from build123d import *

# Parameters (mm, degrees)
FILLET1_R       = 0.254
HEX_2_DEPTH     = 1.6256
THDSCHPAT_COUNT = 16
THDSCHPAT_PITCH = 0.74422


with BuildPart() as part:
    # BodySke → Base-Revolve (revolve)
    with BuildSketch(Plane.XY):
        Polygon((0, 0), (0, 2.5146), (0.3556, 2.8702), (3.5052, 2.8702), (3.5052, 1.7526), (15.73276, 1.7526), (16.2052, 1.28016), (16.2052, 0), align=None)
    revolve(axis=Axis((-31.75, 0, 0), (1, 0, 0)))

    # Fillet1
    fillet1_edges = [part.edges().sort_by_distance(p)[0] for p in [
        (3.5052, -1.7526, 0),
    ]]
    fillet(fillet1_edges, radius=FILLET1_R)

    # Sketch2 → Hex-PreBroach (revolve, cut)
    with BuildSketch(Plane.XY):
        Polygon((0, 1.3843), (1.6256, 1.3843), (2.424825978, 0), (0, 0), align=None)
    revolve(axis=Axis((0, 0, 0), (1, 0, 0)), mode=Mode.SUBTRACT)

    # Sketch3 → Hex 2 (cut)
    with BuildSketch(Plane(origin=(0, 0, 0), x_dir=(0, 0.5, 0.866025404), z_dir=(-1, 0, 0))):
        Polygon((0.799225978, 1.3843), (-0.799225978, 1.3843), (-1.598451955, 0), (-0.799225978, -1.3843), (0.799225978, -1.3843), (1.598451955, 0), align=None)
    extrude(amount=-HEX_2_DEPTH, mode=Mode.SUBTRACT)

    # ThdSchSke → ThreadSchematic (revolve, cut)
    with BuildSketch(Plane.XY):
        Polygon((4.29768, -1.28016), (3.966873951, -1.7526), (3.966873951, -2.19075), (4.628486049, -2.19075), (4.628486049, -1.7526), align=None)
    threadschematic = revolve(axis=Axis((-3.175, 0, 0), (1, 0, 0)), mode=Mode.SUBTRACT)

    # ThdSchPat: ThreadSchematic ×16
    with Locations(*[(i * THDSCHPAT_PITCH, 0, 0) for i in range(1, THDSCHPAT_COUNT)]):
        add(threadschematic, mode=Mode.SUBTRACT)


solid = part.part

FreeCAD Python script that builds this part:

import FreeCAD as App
import Part
import Sketcher
Q = App.Units.Quantity


def edges_at(feature, points):
    """Names of the edges that pass closest to the given points."""
    edges = feature.Shape.Edges
    near = lambda p: min(range(len(edges)), key=lambda i: edges[i].distToShape(Part.Vertex(*p))[0])
    return sorted({f"Edge{near(p) + 1}" for p in points})


def add_polygon(sketch, points):
    """Adds a closed chain of lines whose ends are joined by coincident constraints."""
    first, n = sketch.GeometryCount, len(points)
    for a, b in zip(points, points[1:] + points[:1]):
        sketch.addGeometry(Part.LineSegment(App.Vector(*a, 0), App.Vector(*b, 0)), False)
    for i in range(n):
        sketch.addConstraint(Sketcher.Constraint("Coincident", first + i, 2, first + (i + 1) % n, 1))

doc = App.newDocument("Part")
params = doc.addObject("Spreadsheet::Sheet", "Params")
for row, (alias, value) in enumerate([
    ("sketch1_width", "0.638 in"),
    ("sketch1_width2", "0.124 in"),
    ("sketch1_height", "0.099 in"),
    ("sketch1_height2", "0.044 in"),
    ("revolution_angle", "360 deg"),
    ("fillet_radius", "0.01 in"),
    ("sketch2_width", "0.064 in"),
    ("groove_angle", "360 deg"),
    ("pocket1_length", "0.064 in"),
    ("groove2_angle", "360 deg"),
    ("linearpattern_pitch", "0.0293 in"),
], start=1):
    params.set(f"A{row}", alias)
    params.set(f"B{row}", "=" + value)
    params.setAlias(f"B{row}", alias)

body = doc.addObject("PartDesign::Body", "Body")

sketch1 = body.newObject("Sketcher::SketchObject", "Sketch")
sketch1.AttachmentSupport = (doc.getObject("XY_Plane"), [""])
sketch1.MapMode = "FlatFace"
add_polygon(sketch1, [(0, 2.5), (0, 0), (16.2, 0), (16.2, 1.3), (15.7, 1.8), (3.5, 1.8), (3.5, 2.9), (0.4, 2.9)])
sketch1.addConstraint([
    Sketcher.Constraint("Vertical", 0),
    Sketcher.Constraint("Horizontal", 1),
    Sketcher.Constraint("Vertical", 2),
    Sketcher.Constraint("Horizontal", 4),
    Sketcher.Constraint("Vertical", 5),
    Sketcher.Constraint("Horizontal", 6),
    Sketcher.Constraint("Coincident", 0, 2, -1, 1),
    Sketcher.Constraint("Perpendicular", 3, 7),
    Sketcher.Constraint("Angle", 3, Q("135 deg")),
    Sketcher.Constraint("DistanceX", 4, 2, 2, 2, Q("0.5 in")),
    Sketcher.Constraint("DistanceX", 1, 1, 1, 2, Q("0.638 in")),
    Sketcher.Constraint("DistanceX", 6, 2, 6, 1, Q("0.124 in")),
    Sketcher.Constraint("DistanceY", 0, 2, 0, 1, Q("0.099 in")),
    Sketcher.Constraint("DistanceY", 5, 1, 5, 2, Q("0.044 in")),
    Sketcher.Constraint("DistanceX", 4, 2, 4, 1, Q("0.4814 in")),
])
sketch1.setExpression("Constraints[18]", "Params.sketch1_width")
sketch1.setExpression("Constraints[19]", "Params.sketch1_width2")
sketch1.setExpression("Constraints[20]", "Params.sketch1_height")
sketch1.setExpression("Constraints[21]", "Params.sketch1_height2")
revolution = body.newObject("PartDesign::Revolution", "Revolution")
revolution.Profile = sketch1
revolution.ReferenceAxis = (sketch1, ["H_Axis"])
revolution.setExpression("Angle", "Params.revolution_angle")
doc.recompute()

fillet = body.newObject("PartDesign::Fillet", "Fillet")
fillet.Base = (revolution, edges_at(revolution, [(3.505, -1.753, 0)]))
fillet.setExpression("Radius", "Params.fillet_radius")

sketch2 = body.newObject("Sketcher::SketchObject", "Sketch001")
sketch2.AttachmentSupport = (doc.getObject("XY_Plane"), [""])
sketch2.MapMode = "FlatFace"
add_polygon(sketch2, [(1.6, 1.4), (0, 1.4), (0, 0), (2.4, 0)])
sketch2.addConstraint([
    Sketcher.Constraint("Horizontal", 0),
    Sketcher.Constraint("Vertical", 1),
    Sketcher.Constraint("Horizontal", 2),
    Sketcher.Constraint("Coincident", 1, 2, -1, 1),
    Sketcher.Constraint("Angle", 3, Q("120 deg")),
    Sketcher.Constraint("DistanceX", 0, 2, 0, 1, Q("0.064 in")),
    Sketcher.Constraint("DistanceY", 1, 2, 1, 1, Q("0.0545 in")),
])
sketch2.setExpression("Constraints[9]", "Params.sketch2_width")
groove = body.newObject("PartDesign::Groove", "Groove")
groove.Profile = sketch2
groove.ReferenceAxis = (sketch2, ["H_Axis"])
groove.setExpression("Angle", "Params.groove_angle")

sketch3 = body.newObject("Sketcher::SketchObject", "Sketch002")
sketch3.AttachmentSupport = (doc.getObject("YZ_Plane"), [""])
sketch3.MapMode = "FlatFace"
add_polygon(sketch3, [(1.6, 0), (0.8, -1.4), (-0.8, -1.4), (-1.6, 0), (-0.8, 1.4), (0.8, 1.4)])
sketch3.addConstraint([
    Sketcher.Constraint("Horizontal", 1),
    Sketcher.Constraint("Horizontal", 4),
    Sketcher.Constraint("Symmetric", 0, 2, 3, 2, -1, 1),
    Sketcher.Constraint("Symmetric", 2, 2, 5, 2, -1, 1),
    Sketcher.Constraint("PointOnObject", 2, 2, -1),
    Sketcher.Constraint("Parallel", 2, 5),
    Sketcher.Constraint("Vertical", 1, 2, 3, 2),
    Sketcher.Constraint("Angle", 0, Q("-120 deg")),
    Sketcher.Constraint("DistanceY", 1, 2, 3, 2, Q("0.109 in")),
    Sketcher.Constraint("DistanceX", 1, 2, 1, 1, Q("1.598452 mm")),
])
pocket1 = body.newObject("PartDesign::Pocket", "Pocket")
pocket1.Profile = sketch3
pocket1.setExpression("Length", "Params.pocket1_length")
pocket1.Reversed = True

sketch4 = body.newObject("Sketcher::SketchObject", "Sketch003")
sketch4.AttachmentSupport = (doc.getObject("XY_Plane"), [""])
sketch4.MapMode = "FlatFace"
add_polygon(sketch4, [(4.3, -1.28), (3.97, -1.75), (3.97, -2.19), (4.63, -2.19), (4.63, -1.75)])
sketch4.addConstraint([
    Sketcher.Constraint("Vertical", 1),
    Sketcher.Constraint("Horizontal", 2),
    Sketcher.Constraint("Vertical", 3),
    Sketcher.Constraint("Horizontal", 0, 2, 3, 2),
    Sketcher.Constraint("Equal", 0, 4),
    Sketcher.Constraint("Angle", 0, Q("-125 deg")),
    Sketcher.Constraint("DistanceY", 0, 2, -1, 1, Q("0.069 in")),
    Sketcher.Constraint("DistanceX", -1, 1, 4, 2, Q("0.1692 in")),
    Sketcher.Constraint("DistanceY", 4, 2, -1, 1, Q("0.0504 in")),
    Sketcher.Constraint("DistanceY", 1, 2, 1, 1, Q("0.43815 mm")),
])
groove2 = body.newObject("PartDesign::Groove", "Groove001")
groove2.Profile = sketch4
groove2.ReferenceAxis = (sketch4, ["H_Axis"])
groove2.setExpression("Angle", "Params.groove2_angle")
doc.recompute()

linearpattern = body.newObject("PartDesign::LinearPattern", "LinearPattern")
linearpattern.Originals = [groove2]
linearpattern.Direction = (doc.getObject("X_Axis"), [""])
linearpattern.Mode = "offset"
linearpattern.setExpression("Offset", "Params.linearpattern_pitch")
linearpattern.Occurrences = 16
body.Tip = linearpattern

doc.recompute()
